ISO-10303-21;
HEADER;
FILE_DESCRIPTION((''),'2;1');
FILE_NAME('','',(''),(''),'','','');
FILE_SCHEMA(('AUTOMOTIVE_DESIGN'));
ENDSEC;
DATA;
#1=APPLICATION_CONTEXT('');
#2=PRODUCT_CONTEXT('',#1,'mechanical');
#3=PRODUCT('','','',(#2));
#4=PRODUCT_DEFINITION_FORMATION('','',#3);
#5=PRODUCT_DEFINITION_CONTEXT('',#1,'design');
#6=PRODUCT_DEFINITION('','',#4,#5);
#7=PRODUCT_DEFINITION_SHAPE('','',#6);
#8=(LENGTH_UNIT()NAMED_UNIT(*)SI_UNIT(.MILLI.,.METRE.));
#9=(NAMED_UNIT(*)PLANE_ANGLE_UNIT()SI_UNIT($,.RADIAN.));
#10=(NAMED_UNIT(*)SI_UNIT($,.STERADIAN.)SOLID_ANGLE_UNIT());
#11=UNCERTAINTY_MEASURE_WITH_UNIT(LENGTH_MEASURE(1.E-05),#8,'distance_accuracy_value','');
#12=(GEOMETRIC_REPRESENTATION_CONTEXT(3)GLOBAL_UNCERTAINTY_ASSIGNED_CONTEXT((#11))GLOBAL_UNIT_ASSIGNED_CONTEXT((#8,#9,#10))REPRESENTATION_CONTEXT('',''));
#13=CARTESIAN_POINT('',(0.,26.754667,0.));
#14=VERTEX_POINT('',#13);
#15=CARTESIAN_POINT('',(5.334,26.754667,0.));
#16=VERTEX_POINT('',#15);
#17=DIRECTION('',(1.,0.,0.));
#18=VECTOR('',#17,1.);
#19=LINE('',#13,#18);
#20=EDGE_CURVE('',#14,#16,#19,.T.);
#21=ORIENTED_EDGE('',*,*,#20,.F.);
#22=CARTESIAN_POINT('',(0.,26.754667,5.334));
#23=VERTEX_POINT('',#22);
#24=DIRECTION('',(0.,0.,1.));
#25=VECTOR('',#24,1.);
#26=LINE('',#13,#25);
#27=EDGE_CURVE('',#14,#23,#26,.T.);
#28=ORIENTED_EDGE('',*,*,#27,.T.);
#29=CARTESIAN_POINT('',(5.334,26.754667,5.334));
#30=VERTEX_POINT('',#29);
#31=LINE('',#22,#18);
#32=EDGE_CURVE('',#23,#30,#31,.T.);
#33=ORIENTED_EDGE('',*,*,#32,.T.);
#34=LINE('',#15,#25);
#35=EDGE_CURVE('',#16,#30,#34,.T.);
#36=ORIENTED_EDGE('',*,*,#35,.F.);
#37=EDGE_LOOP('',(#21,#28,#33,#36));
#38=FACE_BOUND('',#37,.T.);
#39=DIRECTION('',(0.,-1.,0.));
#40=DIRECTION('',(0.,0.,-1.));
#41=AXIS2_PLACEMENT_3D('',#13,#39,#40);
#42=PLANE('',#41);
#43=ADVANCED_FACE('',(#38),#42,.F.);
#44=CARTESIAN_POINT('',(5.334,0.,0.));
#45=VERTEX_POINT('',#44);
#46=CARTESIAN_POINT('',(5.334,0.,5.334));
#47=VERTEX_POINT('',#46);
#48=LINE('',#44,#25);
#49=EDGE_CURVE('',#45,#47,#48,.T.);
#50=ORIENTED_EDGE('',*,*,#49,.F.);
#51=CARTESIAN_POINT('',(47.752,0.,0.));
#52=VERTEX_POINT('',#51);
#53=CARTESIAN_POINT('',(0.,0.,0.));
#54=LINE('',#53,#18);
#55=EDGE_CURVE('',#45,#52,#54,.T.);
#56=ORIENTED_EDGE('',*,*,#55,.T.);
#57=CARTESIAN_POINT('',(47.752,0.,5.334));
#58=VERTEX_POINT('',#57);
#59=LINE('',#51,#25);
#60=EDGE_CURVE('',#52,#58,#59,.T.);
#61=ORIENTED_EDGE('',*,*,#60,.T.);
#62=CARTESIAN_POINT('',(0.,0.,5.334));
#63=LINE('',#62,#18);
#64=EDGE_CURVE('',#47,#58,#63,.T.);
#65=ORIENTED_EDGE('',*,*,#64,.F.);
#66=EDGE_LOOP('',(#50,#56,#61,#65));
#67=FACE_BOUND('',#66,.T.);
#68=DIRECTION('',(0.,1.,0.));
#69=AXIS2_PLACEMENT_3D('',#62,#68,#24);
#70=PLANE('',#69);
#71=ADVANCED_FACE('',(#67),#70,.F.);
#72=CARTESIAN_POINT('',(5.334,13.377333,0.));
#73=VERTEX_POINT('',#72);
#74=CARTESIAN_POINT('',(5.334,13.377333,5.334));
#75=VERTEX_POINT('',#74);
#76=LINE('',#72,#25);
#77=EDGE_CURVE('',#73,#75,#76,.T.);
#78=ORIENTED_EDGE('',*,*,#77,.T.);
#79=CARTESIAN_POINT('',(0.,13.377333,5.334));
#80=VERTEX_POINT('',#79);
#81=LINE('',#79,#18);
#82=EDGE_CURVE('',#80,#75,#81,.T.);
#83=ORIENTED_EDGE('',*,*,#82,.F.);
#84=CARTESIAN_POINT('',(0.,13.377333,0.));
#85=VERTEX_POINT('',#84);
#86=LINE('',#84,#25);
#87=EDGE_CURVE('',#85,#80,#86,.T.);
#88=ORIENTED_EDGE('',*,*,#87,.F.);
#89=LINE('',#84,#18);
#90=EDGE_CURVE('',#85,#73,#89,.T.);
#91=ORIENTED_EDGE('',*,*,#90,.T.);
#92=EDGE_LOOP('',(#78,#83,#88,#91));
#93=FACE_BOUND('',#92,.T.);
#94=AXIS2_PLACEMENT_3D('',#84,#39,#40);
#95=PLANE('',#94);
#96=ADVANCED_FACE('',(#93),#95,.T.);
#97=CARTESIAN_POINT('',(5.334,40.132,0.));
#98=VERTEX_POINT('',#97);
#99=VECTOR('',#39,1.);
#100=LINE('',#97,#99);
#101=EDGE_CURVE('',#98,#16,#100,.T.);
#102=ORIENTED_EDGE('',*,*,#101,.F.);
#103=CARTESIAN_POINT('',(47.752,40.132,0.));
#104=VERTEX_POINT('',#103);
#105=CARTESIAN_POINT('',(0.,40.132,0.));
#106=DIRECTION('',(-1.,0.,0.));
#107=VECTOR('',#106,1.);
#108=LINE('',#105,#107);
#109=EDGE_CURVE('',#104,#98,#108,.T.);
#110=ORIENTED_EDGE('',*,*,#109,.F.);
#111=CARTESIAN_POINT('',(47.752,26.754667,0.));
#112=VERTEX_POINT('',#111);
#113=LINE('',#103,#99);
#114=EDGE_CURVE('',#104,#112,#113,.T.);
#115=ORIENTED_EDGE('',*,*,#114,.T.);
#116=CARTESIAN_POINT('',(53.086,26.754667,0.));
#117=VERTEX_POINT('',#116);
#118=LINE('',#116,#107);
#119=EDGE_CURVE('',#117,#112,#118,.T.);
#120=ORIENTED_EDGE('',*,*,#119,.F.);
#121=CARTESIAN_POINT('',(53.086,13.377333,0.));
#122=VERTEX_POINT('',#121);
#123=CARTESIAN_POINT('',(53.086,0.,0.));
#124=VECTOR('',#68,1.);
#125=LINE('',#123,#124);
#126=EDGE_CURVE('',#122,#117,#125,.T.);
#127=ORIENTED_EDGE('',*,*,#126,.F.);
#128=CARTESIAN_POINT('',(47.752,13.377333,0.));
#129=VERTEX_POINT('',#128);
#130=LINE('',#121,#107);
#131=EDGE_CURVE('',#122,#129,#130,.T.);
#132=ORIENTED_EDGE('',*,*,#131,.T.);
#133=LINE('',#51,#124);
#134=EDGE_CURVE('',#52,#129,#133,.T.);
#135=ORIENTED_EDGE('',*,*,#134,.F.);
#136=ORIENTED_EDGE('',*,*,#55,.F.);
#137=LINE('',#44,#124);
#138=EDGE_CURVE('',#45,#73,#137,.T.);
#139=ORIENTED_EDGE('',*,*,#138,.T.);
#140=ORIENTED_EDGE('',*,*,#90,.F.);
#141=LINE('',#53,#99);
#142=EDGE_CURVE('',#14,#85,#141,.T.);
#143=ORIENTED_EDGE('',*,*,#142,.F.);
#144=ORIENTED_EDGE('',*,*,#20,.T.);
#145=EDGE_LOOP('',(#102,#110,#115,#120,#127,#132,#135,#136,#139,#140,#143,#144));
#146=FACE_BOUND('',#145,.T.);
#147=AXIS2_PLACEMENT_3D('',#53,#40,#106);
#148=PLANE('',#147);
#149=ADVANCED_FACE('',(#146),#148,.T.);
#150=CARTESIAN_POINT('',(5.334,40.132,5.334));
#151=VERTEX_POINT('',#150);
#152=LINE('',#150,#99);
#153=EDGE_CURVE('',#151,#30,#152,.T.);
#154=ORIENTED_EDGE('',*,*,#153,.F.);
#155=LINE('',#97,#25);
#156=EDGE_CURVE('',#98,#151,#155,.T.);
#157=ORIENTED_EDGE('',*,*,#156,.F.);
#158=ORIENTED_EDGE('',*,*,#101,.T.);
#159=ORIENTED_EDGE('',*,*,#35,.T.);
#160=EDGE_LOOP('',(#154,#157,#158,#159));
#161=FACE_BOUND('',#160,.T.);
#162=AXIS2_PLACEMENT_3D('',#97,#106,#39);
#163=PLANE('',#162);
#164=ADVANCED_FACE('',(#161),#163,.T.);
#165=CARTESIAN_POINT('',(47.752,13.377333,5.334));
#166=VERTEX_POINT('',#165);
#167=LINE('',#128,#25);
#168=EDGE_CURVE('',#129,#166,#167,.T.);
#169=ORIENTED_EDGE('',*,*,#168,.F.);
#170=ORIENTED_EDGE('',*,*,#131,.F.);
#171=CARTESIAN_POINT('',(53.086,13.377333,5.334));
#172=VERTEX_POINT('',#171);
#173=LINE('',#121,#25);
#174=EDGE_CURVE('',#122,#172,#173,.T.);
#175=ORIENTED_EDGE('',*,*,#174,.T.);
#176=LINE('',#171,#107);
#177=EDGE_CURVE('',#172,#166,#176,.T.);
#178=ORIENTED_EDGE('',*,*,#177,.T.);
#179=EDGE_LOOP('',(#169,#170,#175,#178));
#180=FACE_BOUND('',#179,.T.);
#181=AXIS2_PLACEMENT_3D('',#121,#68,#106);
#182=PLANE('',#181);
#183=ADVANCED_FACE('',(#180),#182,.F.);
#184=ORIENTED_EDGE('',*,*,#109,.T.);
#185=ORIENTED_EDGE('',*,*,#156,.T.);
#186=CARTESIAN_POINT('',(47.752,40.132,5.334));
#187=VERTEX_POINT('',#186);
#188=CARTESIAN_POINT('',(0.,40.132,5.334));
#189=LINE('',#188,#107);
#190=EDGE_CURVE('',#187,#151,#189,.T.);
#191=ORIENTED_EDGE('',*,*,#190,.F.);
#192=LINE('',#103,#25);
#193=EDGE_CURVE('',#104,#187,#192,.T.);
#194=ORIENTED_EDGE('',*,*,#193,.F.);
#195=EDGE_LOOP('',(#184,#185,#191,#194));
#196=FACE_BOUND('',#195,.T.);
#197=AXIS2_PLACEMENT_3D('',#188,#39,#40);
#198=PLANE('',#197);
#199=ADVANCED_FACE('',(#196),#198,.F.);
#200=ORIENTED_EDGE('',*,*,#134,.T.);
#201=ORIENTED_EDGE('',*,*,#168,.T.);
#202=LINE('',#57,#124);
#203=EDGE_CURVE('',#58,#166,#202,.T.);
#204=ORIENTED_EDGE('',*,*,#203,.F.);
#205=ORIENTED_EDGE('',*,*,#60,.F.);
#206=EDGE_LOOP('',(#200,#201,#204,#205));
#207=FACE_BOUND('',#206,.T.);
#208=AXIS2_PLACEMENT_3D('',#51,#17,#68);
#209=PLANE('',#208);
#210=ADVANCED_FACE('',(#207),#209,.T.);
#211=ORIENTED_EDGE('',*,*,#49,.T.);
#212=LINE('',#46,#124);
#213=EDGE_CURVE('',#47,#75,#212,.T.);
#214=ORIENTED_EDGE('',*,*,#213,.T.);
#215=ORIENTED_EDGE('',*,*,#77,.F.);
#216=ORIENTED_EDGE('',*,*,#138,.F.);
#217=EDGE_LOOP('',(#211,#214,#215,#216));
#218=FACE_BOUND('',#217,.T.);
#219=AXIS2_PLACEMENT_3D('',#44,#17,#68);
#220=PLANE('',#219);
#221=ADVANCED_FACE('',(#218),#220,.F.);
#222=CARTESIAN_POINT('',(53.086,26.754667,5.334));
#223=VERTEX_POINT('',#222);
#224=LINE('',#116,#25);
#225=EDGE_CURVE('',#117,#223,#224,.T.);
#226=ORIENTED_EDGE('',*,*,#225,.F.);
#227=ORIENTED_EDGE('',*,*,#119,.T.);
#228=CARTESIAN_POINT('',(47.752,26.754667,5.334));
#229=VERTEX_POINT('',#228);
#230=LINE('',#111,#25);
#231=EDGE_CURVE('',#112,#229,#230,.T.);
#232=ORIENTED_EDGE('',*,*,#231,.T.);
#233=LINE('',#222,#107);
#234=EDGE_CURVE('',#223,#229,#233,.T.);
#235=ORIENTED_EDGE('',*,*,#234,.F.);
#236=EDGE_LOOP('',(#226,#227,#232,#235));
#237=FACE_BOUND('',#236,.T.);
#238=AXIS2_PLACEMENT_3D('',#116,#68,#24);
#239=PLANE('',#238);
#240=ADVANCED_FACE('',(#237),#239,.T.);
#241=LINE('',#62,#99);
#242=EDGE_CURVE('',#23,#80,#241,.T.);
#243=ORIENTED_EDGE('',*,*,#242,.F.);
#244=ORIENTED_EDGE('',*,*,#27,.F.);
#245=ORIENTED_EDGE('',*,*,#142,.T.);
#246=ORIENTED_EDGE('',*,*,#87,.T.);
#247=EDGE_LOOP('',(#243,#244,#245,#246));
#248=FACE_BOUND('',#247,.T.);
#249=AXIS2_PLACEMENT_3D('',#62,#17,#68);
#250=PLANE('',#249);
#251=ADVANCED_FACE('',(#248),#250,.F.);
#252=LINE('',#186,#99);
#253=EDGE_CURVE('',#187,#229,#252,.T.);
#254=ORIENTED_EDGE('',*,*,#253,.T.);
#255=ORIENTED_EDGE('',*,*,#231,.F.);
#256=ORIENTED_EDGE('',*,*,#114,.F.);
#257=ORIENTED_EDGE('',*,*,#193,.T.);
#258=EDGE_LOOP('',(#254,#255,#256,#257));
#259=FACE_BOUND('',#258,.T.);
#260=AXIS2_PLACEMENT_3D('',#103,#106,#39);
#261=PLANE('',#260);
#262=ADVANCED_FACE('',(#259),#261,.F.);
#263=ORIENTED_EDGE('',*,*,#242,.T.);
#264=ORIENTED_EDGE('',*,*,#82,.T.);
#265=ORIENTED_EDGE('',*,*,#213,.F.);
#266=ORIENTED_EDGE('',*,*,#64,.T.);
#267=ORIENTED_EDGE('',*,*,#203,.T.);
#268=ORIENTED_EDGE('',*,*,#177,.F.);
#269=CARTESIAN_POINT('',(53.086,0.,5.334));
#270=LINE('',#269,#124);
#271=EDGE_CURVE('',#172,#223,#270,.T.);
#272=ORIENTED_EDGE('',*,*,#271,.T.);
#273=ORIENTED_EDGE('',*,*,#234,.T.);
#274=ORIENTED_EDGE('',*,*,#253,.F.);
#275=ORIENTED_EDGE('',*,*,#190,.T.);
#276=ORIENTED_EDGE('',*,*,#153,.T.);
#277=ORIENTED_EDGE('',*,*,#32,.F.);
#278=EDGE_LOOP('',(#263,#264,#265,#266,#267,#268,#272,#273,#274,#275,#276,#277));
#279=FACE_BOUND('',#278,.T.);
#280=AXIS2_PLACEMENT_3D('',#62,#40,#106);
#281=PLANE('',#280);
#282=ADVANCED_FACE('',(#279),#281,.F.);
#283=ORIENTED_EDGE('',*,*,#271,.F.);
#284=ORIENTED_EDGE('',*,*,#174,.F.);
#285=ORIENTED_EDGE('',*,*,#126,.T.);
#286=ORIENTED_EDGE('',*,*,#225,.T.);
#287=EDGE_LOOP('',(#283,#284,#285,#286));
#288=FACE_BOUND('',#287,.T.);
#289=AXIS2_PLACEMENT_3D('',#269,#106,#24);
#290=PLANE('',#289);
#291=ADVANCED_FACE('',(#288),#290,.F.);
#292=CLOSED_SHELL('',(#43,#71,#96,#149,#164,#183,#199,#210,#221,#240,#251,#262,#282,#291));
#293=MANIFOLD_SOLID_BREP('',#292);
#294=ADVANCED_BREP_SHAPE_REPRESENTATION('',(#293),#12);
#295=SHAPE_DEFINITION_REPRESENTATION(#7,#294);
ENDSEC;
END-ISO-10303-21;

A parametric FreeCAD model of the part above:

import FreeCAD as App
import Part
import Sketcher
Q = App.Units.Quantity


def add_polygon(sketch, points):
    """Adds a closed chain of lines whose ends are joined by coincident constraints."""
    first, n = sketch.GeometryCount, len(points)
    for a, b in zip(points, points[1:] + points[:1]):
        sketch.addGeometry(Part.LineSegment(App.Vector(*a, 0), App.Vector(*b, 0)), False)
    for i in range(n):
        sketch.addConstraint(Sketcher.Constraint("Coincident", first + i, 2, first + (i + 1) % n, 1))

doc = App.newDocument("Part")
params = doc.addObject("Spreadsheet::Sheet", "Params")
for row, (alias, value) in enumerate([
    ("sketch1_width", "2.09 in"),
    ("sketch1_height", "1.58 in"),
    ("pad1_length", "0.21 in"),
    ("sketch2_width", "0.21 in"),
], start=1):
    params.set(f"A{row}", alias)
    params.set(f"B{row}", "=" + value)
    params.setAlias(f"B{row}", alias)

body = doc.addObject("PartDesign::Body", "Body")

# Sketch on XY plane
sketch1 = doc.addObject("Sketcher::SketchObject", "Sketch")
body.addObject(sketch1)
sketch1.AttachmentSupport = (doc.XY_Plane, [""])
sketch1.MapMode = "FlatFace"
add_polygon(sketch1, [(0, 40), (0, 0), (53, 0), (53, 40)])  # lines 0-3
sketch1.addConstraint([
    Sketcher.Constraint("Vertical", 0),
    Sketcher.Constraint("Horizontal", 1),
    Sketcher.Constraint("Vertical", 2),
    Sketcher.Constraint("Horizontal", 3),
    Sketcher.Constraint("Coincident", 0, 2, -1, 1),
    Sketcher.Constraint("DistanceX", 1, 1, 1, 2, Q("2.09 in")),
    Sketcher.Constraint("DistanceY", 0, 2, 0, 1, Q("1.58 in")),
])
sketch1.setExpression("Constraints[9]", "Params.sketch1_width")
sketch1.setExpression("Constraints[10]", "Params.sketch1_height")
pad1 = doc.addObject("PartDesign::Pad", "Pad")
body.addObject(pad1)
pad1.Profile = sketch1
pad1.setExpression("Length", "Params.pad1_length")

# Sketch on XY plane
sketch2 = doc.addObject("Sketcher::SketchObject", "Sketch001")
body.addObject(sketch2)
sketch2.AttachmentSupport = (doc.XY_Plane, [""])
sketch2.MapMode = "FlatFace"
sketch2.AttachmentOffset = App.Placement(App.Vector(0, 0, 0.21 * 25.4), App.Rotation())
add_polygon(sketch2, [(0, 40), (0, 27), (5, 27), (5, 40)])  # lines 0-3
add_polygon(sketch2, [(0, 13), (0, 0), (5, 0), (5, 13)])  # lines 4-7
add_polygon(sketch2, [(48, 13), (48, 0), (53, 0), (53, 13)])  # lines 8-11
add_polygon(sketch2, [(48, 40), (48, 27), (53, 27), (53, 40)])  # lines 12-15
sketch2.addConstraint([
    Sketcher.Constraint("Vertical", 0),
    Sketcher.Constraint("Horizontal", 1),
    Sketcher.Constraint("Vertical", 2),
    Sketcher.Constraint("Horizontal", 3),
    Sketcher.Constraint("Vertical", 4),
    Sketcher.Constraint("Horizontal", 5),
    Sketcher.Constraint("Vertical", 6),
    Sketcher.Constraint("Horizontal", 7),
    Sketcher.Constraint("Vertical", 8),
    Sketcher.Constraint("Horizontal", 9),
    Sketcher.Constraint("Vertical", 10),
    Sketcher.Constraint("Horizontal", 11),
    Sketcher.Constraint("Vertical", 12),
    Sketcher.Constraint("Horizontal", 13),
    Sketcher.Constraint("Vertical", 14),
    Sketcher.Constraint("Horizontal", 15),
    Sketcher.Constraint("Coincident", 4, 2, -1, 1),
    Sketcher.Constraint("PointOnObject", 0, 2, -2),
    Sketcher.Constraint("PointOnObject", 8, 2, -1),
    Sketcher.Constraint("Horizontal", 7, 2, 10, 2),
    Sketcher.Constraint("Horizontal", 1, 2, 12, 2),
    Sketcher.Constraint("Horizontal", 3, 2, 14, 2),
    Sketcher.Constraint("Vertical", 2, 2, 5, 2),
    Sketcher.Constraint("Vertical", 11, 2, 12, 2),
    Sketcher.Constraint("Vertical", 10, 2, 13, 2),
    Sketcher.Constraint("Equal", 7, 9),
    Sketcher.Constraint("Equal", 2, 4),
    Sketcher.Constraint("DistanceX", 1, 1, 1, 2, Q("0.21 in")),
    Sketcher.Constraint("DistanceY", -1, 1, 2, 2, Q("1.58 in")),
    Sketcher.Constraint("DistanceX", -1, 1, 8, 2, Q("1.88 in")),
    Sketcher.Constraint("DistanceY", 0, 2, 0, 1, 13.377333),
])
sketch2.setExpression("Constraints[43]", "Params.sketch2_width")
pocket1 = doc.addObject("PartDesign::Pocket", "Pocket")
body.addObject(pocket1)
pocket1.Profile = sketch2
pocket1.Type = "ThroughAll"

doc.recompute()
